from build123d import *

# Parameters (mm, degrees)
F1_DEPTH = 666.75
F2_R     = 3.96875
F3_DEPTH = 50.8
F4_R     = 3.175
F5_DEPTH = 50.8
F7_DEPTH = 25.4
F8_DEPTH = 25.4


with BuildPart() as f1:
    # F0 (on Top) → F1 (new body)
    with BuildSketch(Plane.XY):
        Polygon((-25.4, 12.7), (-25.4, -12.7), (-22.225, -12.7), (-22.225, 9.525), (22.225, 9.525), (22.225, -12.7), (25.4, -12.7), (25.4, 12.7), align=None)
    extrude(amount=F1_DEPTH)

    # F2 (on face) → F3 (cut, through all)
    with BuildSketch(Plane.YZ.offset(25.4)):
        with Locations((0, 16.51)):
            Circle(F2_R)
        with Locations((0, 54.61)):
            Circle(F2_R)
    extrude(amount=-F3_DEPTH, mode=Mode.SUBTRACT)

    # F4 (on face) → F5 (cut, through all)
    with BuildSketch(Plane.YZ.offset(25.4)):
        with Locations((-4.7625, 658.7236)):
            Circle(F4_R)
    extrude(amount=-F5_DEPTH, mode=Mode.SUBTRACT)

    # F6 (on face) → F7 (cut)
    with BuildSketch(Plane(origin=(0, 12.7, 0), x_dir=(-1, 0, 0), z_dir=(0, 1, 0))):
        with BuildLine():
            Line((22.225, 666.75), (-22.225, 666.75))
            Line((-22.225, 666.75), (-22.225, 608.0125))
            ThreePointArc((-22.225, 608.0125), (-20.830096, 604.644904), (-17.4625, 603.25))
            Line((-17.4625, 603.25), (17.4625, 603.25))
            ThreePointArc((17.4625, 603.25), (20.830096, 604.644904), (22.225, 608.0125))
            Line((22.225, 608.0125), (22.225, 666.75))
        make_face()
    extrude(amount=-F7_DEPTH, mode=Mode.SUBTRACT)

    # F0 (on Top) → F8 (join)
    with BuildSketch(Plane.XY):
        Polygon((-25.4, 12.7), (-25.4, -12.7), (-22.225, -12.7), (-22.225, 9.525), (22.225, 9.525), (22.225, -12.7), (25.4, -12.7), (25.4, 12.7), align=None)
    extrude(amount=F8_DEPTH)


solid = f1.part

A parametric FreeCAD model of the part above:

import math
import FreeCAD as App
import Part
import Sketcher
from FreeCAD import Vector
Q = App.Units.Quantity


def add_polygon(sketch, points):
    """Adds a closed chain of lines whose ends are joined by coincident constraints."""
    first, n = sketch.GeometryCount, len(points)
    for a, b in zip(points, points[1:] + points[:1]):
        sketch.addGeometry(Part.LineSegment(App.Vector(*a, 0), App.Vector(*b, 0)), False)
    for i in range(n):
        sketch.addConstraint(Sketcher.Constraint("Coincident", first + i, 2, first + (i + 1) % n, 1))

doc = App.newDocument("Part")
params = doc.addObject("Spreadsheet::Sheet", "Params")
for row, (alias, value) in enumerate([
    ("sketch1_width", "2 in"),
    ("sketch1_height", "1 in"),
    ("sketch1_width2", "1.75 in"),
    ("sketch1_height2", "0.875 in"),
    ("pad1_length", "26.25 in"),
    ("sketch2_diameter", "0.3125 in"),
    ("sketch3_diameter", "0.25 in"),
    ("sketch4_radius", "0.1875 in"),
    ("sketch4_width", "1.75 in"),
    ("pocket3_length", "1 in"),
    ("sketch5_width", "2 in"),
    ("sketch5_height", "1 in"),
    ("sketch5_width2", "1.75 in"),
    ("sketch5_height2", "0.875 in"),
    ("pad2_length", "1 in"),
], start=1):
    params.set(f"A{row}", alias)
    params.set(f"B{row}", "=" + value)
    params.setAlias(f"B{row}", alias)

body = doc.addObject("PartDesign::Body", "Body")

# Sketch on XY plane
sketch1 = body.newObject("Sketcher::SketchObject", "Sketch")
sketch1.AttachmentSupport = (doc.getObject("XY_Plane"), [""])
sketch1.MapMode = "FlatFace"
add_polygon(sketch1, [(-25.4, 12.7), (-25.4, -12.7), (-22.2, -12.7), (-22.2, 9.5), (22.2, 9.5), (22.2, -12.7), (25.4, -12.7), (25.4, 12.7)])  # lines 0-7
sketch1.addConstraint([
    Sketcher.Constraint("Vertical", 0),
    Sketcher.Constraint("Horizontal", 1),
    Sketcher.Constraint("Vertical", 2),
    Sketcher.Constraint("Horizontal", 3),
    Sketcher.Constraint("Vertical", 4),
    Sketcher.Constraint("Horizontal", 5),
    Sketcher.Constraint("Vertical", 6),
    Sketcher.Constraint("Horizontal", 7),
    Sketcher.Constraint("Symmetric", 0, 2, 6, 2, -1, 1),
    Sketcher.Constraint("Symmetric", 1, 2, 4, 2, -2),
    Sketcher.Constraint("DistanceX", 7, 2, 7, 1, Q("2 in")),
    Sketcher.Constraint("DistanceY", 0, 2, 0, 1, Q("1 in")),
    Sketcher.Constraint("DistanceX", 3, 1, 3, 2, Q("1.75 in")),
    Sketcher.Constraint("DistanceY", 2, 1, 2, 2, Q("0.875 in")),
])
sketch1.setExpression("Constraints[18]", "Params.sketch1_width")
sketch1.setExpression("Constraints[19]", "Params.sketch1_height")
sketch1.setExpression("Constraints[20]", "Params.sketch1_width2")
sketch1.setExpression("Constraints[21]", "Params.sketch1_height2")
pad1 = body.newObject("PartDesign::Pad", "Pad")
pad1.Profile = sketch1
pad1.setExpression("Length", "Params.pad1_length")

# Sketch on YZ plane
sketch2 = body.newObject("Sketcher::SketchObject", "Sketch001")
sketch2.AttachmentSupport = (doc.getObject("YZ_Plane"), [""])
sketch2.MapMode = "FlatFace"
sketch2.AttachmentOffset = App.Placement(Vector(0, 0, 1 * 25.4), App.Rotation())
sketch2.addGeometry([
    Part.Circle(Vector(0, 16.5, 0), Vector(0, 0, 1), 4),
    Part.Circle(Vector(0, 54.6, 0), Vector(0, 0, 1), 4),
], False)
sketch2.addConstraint([
    Sketcher.Constraint("Equal", 0, 1),
    Sketcher.Constraint("PointOnObject", 0, 3, -2),
    Sketcher.Constraint("PointOnObject", 1, 3, -2),
    Sketcher.Constraint("Diameter", 0, Q("0.3125 in")),
    Sketcher.Constraint("DistanceY", 0, 3, 1, 3, Q("1.5 in")),
    Sketcher.Constraint("DistanceY", -1, 1, 0, 3, Q("0.65 in")),
])
sketch2.setExpression("Constraints[3]", "Params.sketch2_diameter")
pocket1 = body.newObject("PartDesign::Pocket", "Pocket")
pocket1.Profile = sketch2
pocket1.Type = "ThroughAll"

# Sketch on YZ plane
sketch3 = body.newObject("Sketcher::SketchObject", "Sketch002")
sketch3.AttachmentSupport = (doc.getObject("YZ_Plane"), [""])
sketch3.MapMode = "FlatFace"
sketch3.AttachmentOffset = App.Placement(Vector(0, 0, 1 * 25.4), App.Rotation())
sketch3.addGeometry(Part.Circle(Vector(-4.8, 658.7, 0), Vector(0, 0, 1), 3.2), False)
sketch3.addConstraint([
    Sketcher.Constraint("Diameter", 0, Q("0.25 in")),
    Sketcher.Constraint("DistanceX", 0, 3, -1, 1, Q("0.1875 in")),
    Sketcher.Constraint("DistanceY", -1, 1, 0, 3, Q("25.934 in")),
])
sketch3.setExpression("Constraints[0]", "Params.sketch3_diameter")
pocket2 = body.newObject("PartDesign::Pocket", "Pocket001")
pocket2.Profile = sketch3
pocket2.Type = "ThroughAll"

# Sketch on XZ plane
sketch4 = body.newObject("Sketcher::SketchObject", "Sketch003")
sketch4.AttachmentSupport = (doc.getObject("XZ_Plane"), [""])
sketch4.MapMode = "FlatFace"
sketch4.AttachmentOffset = App.Placement(Vector(0, 0, -0.5 * 25.4), App.Rotation())
sketch4.addGeometry([
    Part.LineSegment(Vector(-22.2, 666.8, 0), Vector(22.2, 666.8, 0)),  # 0
    Part.LineSegment(Vector(22.2, 666.8, 0), Vector(22.2, 608, 0)),  # 1
    Part.ArcOfCircle(Part.Circle(Vector(17.5, 608, 0), Vector(0, 0, 1), 4.8), math.radians(-90), math.radians(0)),  # 2
    Part.LineSegment(Vector(17.5, 603.2, 0), Vector(-17.5, 603.2, 0)),  # 3
    Part.ArcOfCircle(Part.Circle(Vector(-17.5, 608, 0), Vector(0, 0, 1), 4.8), math.radians(-180), math.radians(-90)),  # 4
    Part.LineSegment(Vector(-22.2, 608, 0), Vector(-22.2, 666.8, 0)),  # 5
], False)
sketch4.addConstraint([
    Sketcher.Constraint("Coincident", 0, 2, 1, 1),
    Sketcher.Constraint("Tangent", 1, 2, 2, 2),
    Sketcher.Constraint("Tangent", 2, 1, 3, 1),
    Sketcher.Constraint("Tangent", 3, 2, 4, 2),
    Sketcher.Constraint("Tangent", 4, 1, 5, 1),
    Sketcher.Constraint("Coincident", 5, 2, 0, 1),
    Sketcher.Constraint("Horizontal", 0),
    Sketcher.Constraint("Vertical", 1),
    Sketcher.Constraint("Horizontal", 3),
    Sketcher.Constraint("Vertical", 5),
    Sketcher.Constraint("Equal", 2, 4),
    Sketcher.Constraint("Radius", 2, Q("0.1875 in")),
    Sketcher.Constraint("DistanceX", 0, 1, 0, 2, Q("1.75 in")),
    Sketcher.Constraint("DistanceY", 2, 1, 0, 2, Q("2.5 in")),
    Sketcher.Constraint("DistanceY", -1, 1, 0, 2, Q("26.25 in")),
    Sketcher.Constraint("DistanceX", -1, 1, 2, 3, Q("0.6875 in")),
])
sketch4.setExpression("Constraints[11]", "Params.sketch4_radius")
sketch4.setExpression("Constraints[12]", "Params.sketch4_width")
pocket3 = body.newObject("PartDesign::Pocket", "Pocket002")
pocket3.Profile = sketch4
pocket3.setExpression("Length", "Params.pocket3_length")
pocket3.Reversed = True

# Sketch on XY plane
sketch5 = body.newObject("Sketcher::SketchObject", "Sketch004")
sketch5.AttachmentSupport = (doc.getObject("XY_Plane"), [""])
sketch5.MapMode = "FlatFace"
add_polygon(sketch5, [(-25.4, 12.7), (-25.4, -12.7), (-22.2, -12.7), (-22.2, 9.5), (22.2, 9.5), (22.2, -12.7), (25.4, -12.7), (25.4, 12.7)])  # lines 0-7
sketch5.addConstraint([
    Sketcher.Constraint("Vertical", 0),
    Sketcher.Constraint("Horizontal", 1),
    Sketcher.Constraint("Vertical", 2),
    Sketcher.Constraint("Horizontal", 3),
    Sketcher.Constraint("Vertical", 4),
    Sketcher.Constraint("Horizontal", 5),
    Sketcher.Constraint("Vertical", 6),
    Sketcher.Constraint("Horizontal", 7),
    Sketcher.Constraint("Symmetric", 0, 2, 6, 2, -1, 1),
    Sketcher.Constraint("Symmetric", 1, 2, 4, 2, -2),
    Sketcher.Constraint("DistanceX", 7, 2, 7, 1, Q("2 in")),
    Sketcher.Constraint("DistanceY", 0, 2, 0, 1, Q("1 in")),
    Sketcher.Constraint("DistanceX", 3, 1, 3, 2, Q("1.75 in")),
    Sketcher.Constraint("DistanceY", 2, 1, 2, 2, Q("0.875 in")),
])
sketch5.setExpression("Constraints[18]", "Params.sketch5_width")
sketch5.setExpression("Constraints[19]", "Params.sketch5_height")
sketch5.setExpression("Constraints[20]", "Params.sketch5_width2")
sketch5.setExpression("Constraints[21]", "Params.sketch5_height2")
pad2 = body.newObject("PartDesign::Pad", "Pad001")
pad2.Profile = sketch5
pad2.setExpression("Length", "Params.pad2_length")

doc.recompute()
